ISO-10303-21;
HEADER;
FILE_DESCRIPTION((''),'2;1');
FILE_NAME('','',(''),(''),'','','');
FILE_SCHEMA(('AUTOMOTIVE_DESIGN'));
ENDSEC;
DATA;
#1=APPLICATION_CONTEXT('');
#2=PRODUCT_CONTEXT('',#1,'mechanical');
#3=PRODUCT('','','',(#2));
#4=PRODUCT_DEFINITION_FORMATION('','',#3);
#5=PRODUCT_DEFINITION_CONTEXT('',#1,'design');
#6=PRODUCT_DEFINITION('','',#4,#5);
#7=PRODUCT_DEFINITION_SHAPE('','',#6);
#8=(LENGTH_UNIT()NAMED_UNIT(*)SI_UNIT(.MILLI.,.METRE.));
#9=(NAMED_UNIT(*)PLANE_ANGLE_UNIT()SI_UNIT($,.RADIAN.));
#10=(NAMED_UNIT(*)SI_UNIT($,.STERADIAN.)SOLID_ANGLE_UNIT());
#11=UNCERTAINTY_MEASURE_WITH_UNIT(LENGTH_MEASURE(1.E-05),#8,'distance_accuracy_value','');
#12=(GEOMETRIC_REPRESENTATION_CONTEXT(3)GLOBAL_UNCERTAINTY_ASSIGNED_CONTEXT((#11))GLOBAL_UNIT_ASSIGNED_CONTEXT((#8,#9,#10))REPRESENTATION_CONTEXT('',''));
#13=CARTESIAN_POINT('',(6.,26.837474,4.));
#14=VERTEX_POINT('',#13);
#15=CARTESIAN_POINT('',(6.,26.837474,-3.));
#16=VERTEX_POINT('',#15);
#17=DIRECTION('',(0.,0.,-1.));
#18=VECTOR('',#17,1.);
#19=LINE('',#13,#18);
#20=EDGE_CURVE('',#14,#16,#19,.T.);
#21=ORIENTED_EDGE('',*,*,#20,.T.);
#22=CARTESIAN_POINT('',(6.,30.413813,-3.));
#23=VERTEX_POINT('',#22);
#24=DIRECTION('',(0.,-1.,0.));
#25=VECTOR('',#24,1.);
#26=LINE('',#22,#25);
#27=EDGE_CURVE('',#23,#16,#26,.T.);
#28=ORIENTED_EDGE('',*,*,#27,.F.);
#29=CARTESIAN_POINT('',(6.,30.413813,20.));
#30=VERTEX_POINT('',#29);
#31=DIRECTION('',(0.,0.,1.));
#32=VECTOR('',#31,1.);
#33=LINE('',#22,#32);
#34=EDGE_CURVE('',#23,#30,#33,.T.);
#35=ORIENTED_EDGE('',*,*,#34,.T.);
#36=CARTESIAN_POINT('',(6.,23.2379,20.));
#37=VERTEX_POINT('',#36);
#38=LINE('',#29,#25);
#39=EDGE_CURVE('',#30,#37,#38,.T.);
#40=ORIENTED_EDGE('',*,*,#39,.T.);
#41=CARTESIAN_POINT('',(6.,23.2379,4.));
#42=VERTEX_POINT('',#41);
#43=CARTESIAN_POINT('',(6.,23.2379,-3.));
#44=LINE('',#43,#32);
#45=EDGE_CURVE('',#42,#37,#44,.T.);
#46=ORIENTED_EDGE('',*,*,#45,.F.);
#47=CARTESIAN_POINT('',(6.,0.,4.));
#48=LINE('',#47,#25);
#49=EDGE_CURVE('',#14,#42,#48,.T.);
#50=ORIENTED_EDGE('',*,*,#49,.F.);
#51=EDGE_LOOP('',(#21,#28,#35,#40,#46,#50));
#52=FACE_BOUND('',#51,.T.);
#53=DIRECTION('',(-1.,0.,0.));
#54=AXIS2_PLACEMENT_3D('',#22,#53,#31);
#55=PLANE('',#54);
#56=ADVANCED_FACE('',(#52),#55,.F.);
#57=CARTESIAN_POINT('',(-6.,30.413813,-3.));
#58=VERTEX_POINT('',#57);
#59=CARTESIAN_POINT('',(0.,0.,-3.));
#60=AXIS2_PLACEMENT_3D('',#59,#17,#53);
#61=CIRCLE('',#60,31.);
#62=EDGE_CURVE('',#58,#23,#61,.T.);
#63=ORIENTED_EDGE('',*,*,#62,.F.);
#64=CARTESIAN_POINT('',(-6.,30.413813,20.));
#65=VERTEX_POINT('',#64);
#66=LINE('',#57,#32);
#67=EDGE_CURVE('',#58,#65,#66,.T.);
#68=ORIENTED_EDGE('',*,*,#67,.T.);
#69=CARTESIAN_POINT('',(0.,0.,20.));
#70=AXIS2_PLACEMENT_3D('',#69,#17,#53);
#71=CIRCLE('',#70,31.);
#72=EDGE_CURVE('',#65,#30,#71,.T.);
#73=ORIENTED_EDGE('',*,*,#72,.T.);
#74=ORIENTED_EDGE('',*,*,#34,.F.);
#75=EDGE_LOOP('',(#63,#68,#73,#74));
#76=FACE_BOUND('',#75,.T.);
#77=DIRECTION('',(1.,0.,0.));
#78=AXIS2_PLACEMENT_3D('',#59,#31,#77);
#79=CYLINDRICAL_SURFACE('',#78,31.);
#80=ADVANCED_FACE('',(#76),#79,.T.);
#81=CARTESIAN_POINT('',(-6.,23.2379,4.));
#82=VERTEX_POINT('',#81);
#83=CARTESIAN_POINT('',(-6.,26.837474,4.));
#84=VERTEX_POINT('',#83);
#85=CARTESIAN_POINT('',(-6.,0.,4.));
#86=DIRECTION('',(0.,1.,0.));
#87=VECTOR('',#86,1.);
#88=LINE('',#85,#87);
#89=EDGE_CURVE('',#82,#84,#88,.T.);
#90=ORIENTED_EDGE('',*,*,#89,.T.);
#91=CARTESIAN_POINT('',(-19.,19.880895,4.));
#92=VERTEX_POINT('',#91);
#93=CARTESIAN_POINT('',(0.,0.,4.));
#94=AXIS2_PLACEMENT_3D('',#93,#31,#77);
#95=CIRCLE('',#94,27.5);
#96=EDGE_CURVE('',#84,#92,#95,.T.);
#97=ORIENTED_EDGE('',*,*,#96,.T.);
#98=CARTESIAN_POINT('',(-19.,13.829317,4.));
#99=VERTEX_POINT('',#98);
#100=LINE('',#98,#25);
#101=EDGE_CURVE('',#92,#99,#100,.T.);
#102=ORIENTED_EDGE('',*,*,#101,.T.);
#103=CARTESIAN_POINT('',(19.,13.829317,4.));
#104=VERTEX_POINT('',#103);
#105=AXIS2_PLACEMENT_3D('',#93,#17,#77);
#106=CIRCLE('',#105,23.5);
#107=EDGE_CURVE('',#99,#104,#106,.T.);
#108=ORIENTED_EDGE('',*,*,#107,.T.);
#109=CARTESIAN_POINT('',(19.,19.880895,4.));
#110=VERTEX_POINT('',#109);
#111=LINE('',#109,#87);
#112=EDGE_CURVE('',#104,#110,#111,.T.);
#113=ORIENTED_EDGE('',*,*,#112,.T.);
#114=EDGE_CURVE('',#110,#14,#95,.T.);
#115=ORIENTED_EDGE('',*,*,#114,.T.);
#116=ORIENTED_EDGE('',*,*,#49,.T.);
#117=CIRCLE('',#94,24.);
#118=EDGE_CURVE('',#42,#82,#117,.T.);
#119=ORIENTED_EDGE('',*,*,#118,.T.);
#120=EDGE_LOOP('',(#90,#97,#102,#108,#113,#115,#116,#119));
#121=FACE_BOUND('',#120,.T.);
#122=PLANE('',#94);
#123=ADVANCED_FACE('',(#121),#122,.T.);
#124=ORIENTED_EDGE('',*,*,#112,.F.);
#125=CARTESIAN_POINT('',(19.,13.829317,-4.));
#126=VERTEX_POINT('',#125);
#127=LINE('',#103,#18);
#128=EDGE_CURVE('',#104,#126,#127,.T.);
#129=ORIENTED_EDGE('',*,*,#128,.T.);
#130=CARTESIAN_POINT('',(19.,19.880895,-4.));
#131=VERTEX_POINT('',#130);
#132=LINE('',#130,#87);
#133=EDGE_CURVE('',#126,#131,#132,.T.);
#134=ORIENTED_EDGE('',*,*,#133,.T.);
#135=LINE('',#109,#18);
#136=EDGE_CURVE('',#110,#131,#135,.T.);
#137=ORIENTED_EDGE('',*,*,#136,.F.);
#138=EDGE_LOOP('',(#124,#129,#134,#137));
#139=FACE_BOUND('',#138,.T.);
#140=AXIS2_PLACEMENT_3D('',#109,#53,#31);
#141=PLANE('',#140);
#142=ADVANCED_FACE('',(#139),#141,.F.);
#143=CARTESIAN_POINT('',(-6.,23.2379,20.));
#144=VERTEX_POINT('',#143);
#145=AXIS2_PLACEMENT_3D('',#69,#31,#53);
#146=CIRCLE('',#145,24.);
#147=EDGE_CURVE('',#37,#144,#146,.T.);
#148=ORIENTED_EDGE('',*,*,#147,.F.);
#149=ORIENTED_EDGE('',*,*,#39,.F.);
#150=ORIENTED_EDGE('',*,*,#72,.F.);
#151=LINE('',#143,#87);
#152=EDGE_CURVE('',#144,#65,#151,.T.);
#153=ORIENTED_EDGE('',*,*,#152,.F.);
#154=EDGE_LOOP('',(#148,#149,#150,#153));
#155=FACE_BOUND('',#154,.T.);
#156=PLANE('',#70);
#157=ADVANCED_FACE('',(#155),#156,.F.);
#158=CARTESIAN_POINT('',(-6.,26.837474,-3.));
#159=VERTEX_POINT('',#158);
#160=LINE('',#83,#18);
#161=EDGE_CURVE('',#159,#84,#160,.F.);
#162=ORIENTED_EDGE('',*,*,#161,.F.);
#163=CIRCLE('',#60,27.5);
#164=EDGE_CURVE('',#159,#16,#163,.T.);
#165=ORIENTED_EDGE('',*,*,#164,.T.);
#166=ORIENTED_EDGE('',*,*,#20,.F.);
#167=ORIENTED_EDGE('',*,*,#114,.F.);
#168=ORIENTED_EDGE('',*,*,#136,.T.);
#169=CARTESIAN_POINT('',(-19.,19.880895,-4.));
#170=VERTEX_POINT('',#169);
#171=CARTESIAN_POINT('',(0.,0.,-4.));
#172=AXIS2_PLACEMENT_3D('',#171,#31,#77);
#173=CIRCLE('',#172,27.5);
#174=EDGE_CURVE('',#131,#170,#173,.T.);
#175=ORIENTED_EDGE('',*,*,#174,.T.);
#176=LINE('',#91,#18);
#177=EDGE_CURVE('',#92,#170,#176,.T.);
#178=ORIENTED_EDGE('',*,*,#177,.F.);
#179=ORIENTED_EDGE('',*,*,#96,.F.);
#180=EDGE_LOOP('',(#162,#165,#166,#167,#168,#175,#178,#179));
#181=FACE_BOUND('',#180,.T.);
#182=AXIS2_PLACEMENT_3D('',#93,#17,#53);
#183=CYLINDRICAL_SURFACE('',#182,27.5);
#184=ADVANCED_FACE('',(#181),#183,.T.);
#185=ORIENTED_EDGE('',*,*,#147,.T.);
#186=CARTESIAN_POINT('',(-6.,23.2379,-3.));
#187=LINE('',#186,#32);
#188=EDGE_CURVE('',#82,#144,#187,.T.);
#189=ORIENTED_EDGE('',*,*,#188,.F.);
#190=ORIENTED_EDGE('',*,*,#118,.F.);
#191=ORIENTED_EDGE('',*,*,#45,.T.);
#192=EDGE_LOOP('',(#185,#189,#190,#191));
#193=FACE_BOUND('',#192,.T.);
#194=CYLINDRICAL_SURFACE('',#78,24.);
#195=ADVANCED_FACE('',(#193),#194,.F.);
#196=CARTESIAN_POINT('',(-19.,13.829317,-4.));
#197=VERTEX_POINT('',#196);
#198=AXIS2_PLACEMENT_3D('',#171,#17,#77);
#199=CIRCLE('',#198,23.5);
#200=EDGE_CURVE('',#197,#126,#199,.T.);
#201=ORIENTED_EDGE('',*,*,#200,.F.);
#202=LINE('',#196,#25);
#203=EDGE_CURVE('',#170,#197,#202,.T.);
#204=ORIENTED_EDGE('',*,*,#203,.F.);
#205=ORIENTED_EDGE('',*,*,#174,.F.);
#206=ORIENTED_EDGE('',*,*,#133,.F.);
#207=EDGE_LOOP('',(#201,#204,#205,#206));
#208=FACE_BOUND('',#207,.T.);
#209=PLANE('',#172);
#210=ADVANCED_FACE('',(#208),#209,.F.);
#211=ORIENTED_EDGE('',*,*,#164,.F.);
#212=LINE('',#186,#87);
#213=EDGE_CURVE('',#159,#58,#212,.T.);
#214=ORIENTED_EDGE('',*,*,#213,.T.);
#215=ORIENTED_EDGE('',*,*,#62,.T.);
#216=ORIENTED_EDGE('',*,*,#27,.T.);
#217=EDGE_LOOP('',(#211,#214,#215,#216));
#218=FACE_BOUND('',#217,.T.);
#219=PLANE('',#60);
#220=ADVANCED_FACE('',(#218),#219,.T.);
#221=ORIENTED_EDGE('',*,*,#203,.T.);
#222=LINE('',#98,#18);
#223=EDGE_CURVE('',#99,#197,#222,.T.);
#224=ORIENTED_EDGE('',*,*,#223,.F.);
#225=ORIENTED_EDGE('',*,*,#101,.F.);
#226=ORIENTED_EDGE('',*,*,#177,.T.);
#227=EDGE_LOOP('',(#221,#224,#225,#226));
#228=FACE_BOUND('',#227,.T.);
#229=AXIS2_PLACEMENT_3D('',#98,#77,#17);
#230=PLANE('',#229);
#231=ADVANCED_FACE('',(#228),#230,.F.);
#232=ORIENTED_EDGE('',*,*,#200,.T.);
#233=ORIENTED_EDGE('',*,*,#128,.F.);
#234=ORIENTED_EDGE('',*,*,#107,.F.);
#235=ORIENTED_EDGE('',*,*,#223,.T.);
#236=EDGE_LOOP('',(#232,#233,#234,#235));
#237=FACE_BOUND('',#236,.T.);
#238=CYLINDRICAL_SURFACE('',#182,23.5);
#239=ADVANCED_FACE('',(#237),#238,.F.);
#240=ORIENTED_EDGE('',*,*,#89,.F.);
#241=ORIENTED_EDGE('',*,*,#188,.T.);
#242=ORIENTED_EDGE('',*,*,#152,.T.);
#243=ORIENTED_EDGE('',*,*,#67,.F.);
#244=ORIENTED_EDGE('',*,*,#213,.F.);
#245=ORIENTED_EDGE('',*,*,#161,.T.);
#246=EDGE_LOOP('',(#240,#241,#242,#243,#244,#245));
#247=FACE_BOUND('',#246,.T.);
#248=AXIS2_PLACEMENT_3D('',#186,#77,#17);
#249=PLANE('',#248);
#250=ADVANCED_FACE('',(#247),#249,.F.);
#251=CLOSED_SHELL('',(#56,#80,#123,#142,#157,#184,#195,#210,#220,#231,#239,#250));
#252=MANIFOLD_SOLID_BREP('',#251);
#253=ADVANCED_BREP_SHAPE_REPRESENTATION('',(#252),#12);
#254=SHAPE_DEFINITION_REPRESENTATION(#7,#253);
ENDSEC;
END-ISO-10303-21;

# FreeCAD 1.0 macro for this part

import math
import FreeCAD as App
import Part
import Sketcher

doc = App.newDocument("Part")
body = doc.addObject("PartDesign::Body", "Body")

# Sketch on XY plane
sketch1 = body.newObject("Sketcher::SketchObject", "Sketch")
sketch1.AttachmentSupport = (doc.getObject("XY_Plane"), [""])
sketch1.MapMode = "FlatFace"
sketch1.addGeometry([
    Part.LineSegment(App.Vector(-19, 20, 0), App.Vector(-19, 14, 0)),
    Part.ArcOfCircle(Part.Circle(App.Vector(0, 0, 0), App.Vector(0, 0, 1), 24), math.radians(36), math.radians(144)),
    Part.LineSegment(App.Vector(19, 14, 0), App.Vector(19, 20, 0)),
    Part.ArcOfCircle(Part.Circle(App.Vector(0, 0, 0), App.Vector(0, 0, 1), 28), math.radians(46), math.radians(134)),
], False)
sketch1.addConstraint([
    Sketcher.Constraint("Coincident", 0, 2, 1, 2),
    Sketcher.Constraint("Coincident", 1, 1, 2, 1),
    Sketcher.Constraint("Coincident", 2, 2, 3, 1),
    Sketcher.Constraint("Coincident", 3, 2, 0, 1),
    Sketcher.Constraint("Vertical", 0),
    Sketcher.Constraint("Vertical", 2),
    Sketcher.Constraint("Coincident", 1, 3, -1, 1),
    Sketcher.Constraint("Coincident", 3, 3, -1, 1),
    Sketcher.Constraint("Horizontal", 0, 2, 1, 1),
    Sketcher.Constraint("Radius", 1, 23.5),
    Sketcher.Constraint("Radius", 3, 27.5),
    Sketcher.Constraint("DistanceX", 0, 2, -1, 1, 19.0),
])
pad1 = body.newObject("PartDesign::Pad", "Pad")
pad1.Profile = sketch1
pad1.Length = 8
pad1.Midplane = True

# Sketch on XY plane
sketch2 = body.newObject("Sketcher::SketchObject", "Sketch001")
sketch2.AttachmentSupport = (doc.getObject("XY_Plane"), [""])
sketch2.MapMode = "FlatFace"
sketch2.AttachmentOffset = App.Placement(App.Vector(0, 0, 4), App.Rotation())
sketch2.addGeometry([
    Part.LineSegment(App.Vector(-6, 23, 0), App.Vector(-6, 30, 0)),
    Part.ArcOfCircle(Part.Circle(App.Vector(0, 0, 0), App.Vector(0, 0, 1), 31), math.radians(79), math.radians(101)),
    Part.LineSegment(App.Vector(6, 30, 0), App.Vector(6, 23, 0)),
    Part.ArcOfCircle(Part.Circle(App.Vector(0, 0, 0), App.Vector(0, 0, 1), 24), math.radians(76), math.radians(104)),
], False)
sketch2.addConstraint([
    Sketcher.Constraint("Coincident", 0, 2, 1, 2),
    Sketcher.Constraint("Coincident", 1, 1, 2, 1),
    Sketcher.Constraint("Coincident", 2, 2, 3, 1),
    Sketcher.Constraint("Coincident", 3, 2, 0, 1),
    Sketcher.Constraint("Vertical", 0),
    Sketcher.Constraint("Vertical", 2),
    Sketcher.Constraint("Coincident", 1, 3, -1, 1),
    Sketcher.Constraint("Coincident", 3, 3, -1, 1),
    Sketcher.Constraint("Horizontal", 0, 2, 1, 1),
    Sketcher.Constraint("Radius", 1, 31.0),
    Sketcher.Constraint("Radius", 3, 24.0),
    Sketcher.Constraint("DistanceX", 0, 2, -1, 1, 6.0),
])
pad2 = body.newObject("PartDesign::Pad", "Pad001")
pad2.Profile = sketch2
pad2.Type = "TwoLengths"
pad2.Length = 7
pad2.Length2 = 16
pad2.Reversed = True

doc.recompute()
